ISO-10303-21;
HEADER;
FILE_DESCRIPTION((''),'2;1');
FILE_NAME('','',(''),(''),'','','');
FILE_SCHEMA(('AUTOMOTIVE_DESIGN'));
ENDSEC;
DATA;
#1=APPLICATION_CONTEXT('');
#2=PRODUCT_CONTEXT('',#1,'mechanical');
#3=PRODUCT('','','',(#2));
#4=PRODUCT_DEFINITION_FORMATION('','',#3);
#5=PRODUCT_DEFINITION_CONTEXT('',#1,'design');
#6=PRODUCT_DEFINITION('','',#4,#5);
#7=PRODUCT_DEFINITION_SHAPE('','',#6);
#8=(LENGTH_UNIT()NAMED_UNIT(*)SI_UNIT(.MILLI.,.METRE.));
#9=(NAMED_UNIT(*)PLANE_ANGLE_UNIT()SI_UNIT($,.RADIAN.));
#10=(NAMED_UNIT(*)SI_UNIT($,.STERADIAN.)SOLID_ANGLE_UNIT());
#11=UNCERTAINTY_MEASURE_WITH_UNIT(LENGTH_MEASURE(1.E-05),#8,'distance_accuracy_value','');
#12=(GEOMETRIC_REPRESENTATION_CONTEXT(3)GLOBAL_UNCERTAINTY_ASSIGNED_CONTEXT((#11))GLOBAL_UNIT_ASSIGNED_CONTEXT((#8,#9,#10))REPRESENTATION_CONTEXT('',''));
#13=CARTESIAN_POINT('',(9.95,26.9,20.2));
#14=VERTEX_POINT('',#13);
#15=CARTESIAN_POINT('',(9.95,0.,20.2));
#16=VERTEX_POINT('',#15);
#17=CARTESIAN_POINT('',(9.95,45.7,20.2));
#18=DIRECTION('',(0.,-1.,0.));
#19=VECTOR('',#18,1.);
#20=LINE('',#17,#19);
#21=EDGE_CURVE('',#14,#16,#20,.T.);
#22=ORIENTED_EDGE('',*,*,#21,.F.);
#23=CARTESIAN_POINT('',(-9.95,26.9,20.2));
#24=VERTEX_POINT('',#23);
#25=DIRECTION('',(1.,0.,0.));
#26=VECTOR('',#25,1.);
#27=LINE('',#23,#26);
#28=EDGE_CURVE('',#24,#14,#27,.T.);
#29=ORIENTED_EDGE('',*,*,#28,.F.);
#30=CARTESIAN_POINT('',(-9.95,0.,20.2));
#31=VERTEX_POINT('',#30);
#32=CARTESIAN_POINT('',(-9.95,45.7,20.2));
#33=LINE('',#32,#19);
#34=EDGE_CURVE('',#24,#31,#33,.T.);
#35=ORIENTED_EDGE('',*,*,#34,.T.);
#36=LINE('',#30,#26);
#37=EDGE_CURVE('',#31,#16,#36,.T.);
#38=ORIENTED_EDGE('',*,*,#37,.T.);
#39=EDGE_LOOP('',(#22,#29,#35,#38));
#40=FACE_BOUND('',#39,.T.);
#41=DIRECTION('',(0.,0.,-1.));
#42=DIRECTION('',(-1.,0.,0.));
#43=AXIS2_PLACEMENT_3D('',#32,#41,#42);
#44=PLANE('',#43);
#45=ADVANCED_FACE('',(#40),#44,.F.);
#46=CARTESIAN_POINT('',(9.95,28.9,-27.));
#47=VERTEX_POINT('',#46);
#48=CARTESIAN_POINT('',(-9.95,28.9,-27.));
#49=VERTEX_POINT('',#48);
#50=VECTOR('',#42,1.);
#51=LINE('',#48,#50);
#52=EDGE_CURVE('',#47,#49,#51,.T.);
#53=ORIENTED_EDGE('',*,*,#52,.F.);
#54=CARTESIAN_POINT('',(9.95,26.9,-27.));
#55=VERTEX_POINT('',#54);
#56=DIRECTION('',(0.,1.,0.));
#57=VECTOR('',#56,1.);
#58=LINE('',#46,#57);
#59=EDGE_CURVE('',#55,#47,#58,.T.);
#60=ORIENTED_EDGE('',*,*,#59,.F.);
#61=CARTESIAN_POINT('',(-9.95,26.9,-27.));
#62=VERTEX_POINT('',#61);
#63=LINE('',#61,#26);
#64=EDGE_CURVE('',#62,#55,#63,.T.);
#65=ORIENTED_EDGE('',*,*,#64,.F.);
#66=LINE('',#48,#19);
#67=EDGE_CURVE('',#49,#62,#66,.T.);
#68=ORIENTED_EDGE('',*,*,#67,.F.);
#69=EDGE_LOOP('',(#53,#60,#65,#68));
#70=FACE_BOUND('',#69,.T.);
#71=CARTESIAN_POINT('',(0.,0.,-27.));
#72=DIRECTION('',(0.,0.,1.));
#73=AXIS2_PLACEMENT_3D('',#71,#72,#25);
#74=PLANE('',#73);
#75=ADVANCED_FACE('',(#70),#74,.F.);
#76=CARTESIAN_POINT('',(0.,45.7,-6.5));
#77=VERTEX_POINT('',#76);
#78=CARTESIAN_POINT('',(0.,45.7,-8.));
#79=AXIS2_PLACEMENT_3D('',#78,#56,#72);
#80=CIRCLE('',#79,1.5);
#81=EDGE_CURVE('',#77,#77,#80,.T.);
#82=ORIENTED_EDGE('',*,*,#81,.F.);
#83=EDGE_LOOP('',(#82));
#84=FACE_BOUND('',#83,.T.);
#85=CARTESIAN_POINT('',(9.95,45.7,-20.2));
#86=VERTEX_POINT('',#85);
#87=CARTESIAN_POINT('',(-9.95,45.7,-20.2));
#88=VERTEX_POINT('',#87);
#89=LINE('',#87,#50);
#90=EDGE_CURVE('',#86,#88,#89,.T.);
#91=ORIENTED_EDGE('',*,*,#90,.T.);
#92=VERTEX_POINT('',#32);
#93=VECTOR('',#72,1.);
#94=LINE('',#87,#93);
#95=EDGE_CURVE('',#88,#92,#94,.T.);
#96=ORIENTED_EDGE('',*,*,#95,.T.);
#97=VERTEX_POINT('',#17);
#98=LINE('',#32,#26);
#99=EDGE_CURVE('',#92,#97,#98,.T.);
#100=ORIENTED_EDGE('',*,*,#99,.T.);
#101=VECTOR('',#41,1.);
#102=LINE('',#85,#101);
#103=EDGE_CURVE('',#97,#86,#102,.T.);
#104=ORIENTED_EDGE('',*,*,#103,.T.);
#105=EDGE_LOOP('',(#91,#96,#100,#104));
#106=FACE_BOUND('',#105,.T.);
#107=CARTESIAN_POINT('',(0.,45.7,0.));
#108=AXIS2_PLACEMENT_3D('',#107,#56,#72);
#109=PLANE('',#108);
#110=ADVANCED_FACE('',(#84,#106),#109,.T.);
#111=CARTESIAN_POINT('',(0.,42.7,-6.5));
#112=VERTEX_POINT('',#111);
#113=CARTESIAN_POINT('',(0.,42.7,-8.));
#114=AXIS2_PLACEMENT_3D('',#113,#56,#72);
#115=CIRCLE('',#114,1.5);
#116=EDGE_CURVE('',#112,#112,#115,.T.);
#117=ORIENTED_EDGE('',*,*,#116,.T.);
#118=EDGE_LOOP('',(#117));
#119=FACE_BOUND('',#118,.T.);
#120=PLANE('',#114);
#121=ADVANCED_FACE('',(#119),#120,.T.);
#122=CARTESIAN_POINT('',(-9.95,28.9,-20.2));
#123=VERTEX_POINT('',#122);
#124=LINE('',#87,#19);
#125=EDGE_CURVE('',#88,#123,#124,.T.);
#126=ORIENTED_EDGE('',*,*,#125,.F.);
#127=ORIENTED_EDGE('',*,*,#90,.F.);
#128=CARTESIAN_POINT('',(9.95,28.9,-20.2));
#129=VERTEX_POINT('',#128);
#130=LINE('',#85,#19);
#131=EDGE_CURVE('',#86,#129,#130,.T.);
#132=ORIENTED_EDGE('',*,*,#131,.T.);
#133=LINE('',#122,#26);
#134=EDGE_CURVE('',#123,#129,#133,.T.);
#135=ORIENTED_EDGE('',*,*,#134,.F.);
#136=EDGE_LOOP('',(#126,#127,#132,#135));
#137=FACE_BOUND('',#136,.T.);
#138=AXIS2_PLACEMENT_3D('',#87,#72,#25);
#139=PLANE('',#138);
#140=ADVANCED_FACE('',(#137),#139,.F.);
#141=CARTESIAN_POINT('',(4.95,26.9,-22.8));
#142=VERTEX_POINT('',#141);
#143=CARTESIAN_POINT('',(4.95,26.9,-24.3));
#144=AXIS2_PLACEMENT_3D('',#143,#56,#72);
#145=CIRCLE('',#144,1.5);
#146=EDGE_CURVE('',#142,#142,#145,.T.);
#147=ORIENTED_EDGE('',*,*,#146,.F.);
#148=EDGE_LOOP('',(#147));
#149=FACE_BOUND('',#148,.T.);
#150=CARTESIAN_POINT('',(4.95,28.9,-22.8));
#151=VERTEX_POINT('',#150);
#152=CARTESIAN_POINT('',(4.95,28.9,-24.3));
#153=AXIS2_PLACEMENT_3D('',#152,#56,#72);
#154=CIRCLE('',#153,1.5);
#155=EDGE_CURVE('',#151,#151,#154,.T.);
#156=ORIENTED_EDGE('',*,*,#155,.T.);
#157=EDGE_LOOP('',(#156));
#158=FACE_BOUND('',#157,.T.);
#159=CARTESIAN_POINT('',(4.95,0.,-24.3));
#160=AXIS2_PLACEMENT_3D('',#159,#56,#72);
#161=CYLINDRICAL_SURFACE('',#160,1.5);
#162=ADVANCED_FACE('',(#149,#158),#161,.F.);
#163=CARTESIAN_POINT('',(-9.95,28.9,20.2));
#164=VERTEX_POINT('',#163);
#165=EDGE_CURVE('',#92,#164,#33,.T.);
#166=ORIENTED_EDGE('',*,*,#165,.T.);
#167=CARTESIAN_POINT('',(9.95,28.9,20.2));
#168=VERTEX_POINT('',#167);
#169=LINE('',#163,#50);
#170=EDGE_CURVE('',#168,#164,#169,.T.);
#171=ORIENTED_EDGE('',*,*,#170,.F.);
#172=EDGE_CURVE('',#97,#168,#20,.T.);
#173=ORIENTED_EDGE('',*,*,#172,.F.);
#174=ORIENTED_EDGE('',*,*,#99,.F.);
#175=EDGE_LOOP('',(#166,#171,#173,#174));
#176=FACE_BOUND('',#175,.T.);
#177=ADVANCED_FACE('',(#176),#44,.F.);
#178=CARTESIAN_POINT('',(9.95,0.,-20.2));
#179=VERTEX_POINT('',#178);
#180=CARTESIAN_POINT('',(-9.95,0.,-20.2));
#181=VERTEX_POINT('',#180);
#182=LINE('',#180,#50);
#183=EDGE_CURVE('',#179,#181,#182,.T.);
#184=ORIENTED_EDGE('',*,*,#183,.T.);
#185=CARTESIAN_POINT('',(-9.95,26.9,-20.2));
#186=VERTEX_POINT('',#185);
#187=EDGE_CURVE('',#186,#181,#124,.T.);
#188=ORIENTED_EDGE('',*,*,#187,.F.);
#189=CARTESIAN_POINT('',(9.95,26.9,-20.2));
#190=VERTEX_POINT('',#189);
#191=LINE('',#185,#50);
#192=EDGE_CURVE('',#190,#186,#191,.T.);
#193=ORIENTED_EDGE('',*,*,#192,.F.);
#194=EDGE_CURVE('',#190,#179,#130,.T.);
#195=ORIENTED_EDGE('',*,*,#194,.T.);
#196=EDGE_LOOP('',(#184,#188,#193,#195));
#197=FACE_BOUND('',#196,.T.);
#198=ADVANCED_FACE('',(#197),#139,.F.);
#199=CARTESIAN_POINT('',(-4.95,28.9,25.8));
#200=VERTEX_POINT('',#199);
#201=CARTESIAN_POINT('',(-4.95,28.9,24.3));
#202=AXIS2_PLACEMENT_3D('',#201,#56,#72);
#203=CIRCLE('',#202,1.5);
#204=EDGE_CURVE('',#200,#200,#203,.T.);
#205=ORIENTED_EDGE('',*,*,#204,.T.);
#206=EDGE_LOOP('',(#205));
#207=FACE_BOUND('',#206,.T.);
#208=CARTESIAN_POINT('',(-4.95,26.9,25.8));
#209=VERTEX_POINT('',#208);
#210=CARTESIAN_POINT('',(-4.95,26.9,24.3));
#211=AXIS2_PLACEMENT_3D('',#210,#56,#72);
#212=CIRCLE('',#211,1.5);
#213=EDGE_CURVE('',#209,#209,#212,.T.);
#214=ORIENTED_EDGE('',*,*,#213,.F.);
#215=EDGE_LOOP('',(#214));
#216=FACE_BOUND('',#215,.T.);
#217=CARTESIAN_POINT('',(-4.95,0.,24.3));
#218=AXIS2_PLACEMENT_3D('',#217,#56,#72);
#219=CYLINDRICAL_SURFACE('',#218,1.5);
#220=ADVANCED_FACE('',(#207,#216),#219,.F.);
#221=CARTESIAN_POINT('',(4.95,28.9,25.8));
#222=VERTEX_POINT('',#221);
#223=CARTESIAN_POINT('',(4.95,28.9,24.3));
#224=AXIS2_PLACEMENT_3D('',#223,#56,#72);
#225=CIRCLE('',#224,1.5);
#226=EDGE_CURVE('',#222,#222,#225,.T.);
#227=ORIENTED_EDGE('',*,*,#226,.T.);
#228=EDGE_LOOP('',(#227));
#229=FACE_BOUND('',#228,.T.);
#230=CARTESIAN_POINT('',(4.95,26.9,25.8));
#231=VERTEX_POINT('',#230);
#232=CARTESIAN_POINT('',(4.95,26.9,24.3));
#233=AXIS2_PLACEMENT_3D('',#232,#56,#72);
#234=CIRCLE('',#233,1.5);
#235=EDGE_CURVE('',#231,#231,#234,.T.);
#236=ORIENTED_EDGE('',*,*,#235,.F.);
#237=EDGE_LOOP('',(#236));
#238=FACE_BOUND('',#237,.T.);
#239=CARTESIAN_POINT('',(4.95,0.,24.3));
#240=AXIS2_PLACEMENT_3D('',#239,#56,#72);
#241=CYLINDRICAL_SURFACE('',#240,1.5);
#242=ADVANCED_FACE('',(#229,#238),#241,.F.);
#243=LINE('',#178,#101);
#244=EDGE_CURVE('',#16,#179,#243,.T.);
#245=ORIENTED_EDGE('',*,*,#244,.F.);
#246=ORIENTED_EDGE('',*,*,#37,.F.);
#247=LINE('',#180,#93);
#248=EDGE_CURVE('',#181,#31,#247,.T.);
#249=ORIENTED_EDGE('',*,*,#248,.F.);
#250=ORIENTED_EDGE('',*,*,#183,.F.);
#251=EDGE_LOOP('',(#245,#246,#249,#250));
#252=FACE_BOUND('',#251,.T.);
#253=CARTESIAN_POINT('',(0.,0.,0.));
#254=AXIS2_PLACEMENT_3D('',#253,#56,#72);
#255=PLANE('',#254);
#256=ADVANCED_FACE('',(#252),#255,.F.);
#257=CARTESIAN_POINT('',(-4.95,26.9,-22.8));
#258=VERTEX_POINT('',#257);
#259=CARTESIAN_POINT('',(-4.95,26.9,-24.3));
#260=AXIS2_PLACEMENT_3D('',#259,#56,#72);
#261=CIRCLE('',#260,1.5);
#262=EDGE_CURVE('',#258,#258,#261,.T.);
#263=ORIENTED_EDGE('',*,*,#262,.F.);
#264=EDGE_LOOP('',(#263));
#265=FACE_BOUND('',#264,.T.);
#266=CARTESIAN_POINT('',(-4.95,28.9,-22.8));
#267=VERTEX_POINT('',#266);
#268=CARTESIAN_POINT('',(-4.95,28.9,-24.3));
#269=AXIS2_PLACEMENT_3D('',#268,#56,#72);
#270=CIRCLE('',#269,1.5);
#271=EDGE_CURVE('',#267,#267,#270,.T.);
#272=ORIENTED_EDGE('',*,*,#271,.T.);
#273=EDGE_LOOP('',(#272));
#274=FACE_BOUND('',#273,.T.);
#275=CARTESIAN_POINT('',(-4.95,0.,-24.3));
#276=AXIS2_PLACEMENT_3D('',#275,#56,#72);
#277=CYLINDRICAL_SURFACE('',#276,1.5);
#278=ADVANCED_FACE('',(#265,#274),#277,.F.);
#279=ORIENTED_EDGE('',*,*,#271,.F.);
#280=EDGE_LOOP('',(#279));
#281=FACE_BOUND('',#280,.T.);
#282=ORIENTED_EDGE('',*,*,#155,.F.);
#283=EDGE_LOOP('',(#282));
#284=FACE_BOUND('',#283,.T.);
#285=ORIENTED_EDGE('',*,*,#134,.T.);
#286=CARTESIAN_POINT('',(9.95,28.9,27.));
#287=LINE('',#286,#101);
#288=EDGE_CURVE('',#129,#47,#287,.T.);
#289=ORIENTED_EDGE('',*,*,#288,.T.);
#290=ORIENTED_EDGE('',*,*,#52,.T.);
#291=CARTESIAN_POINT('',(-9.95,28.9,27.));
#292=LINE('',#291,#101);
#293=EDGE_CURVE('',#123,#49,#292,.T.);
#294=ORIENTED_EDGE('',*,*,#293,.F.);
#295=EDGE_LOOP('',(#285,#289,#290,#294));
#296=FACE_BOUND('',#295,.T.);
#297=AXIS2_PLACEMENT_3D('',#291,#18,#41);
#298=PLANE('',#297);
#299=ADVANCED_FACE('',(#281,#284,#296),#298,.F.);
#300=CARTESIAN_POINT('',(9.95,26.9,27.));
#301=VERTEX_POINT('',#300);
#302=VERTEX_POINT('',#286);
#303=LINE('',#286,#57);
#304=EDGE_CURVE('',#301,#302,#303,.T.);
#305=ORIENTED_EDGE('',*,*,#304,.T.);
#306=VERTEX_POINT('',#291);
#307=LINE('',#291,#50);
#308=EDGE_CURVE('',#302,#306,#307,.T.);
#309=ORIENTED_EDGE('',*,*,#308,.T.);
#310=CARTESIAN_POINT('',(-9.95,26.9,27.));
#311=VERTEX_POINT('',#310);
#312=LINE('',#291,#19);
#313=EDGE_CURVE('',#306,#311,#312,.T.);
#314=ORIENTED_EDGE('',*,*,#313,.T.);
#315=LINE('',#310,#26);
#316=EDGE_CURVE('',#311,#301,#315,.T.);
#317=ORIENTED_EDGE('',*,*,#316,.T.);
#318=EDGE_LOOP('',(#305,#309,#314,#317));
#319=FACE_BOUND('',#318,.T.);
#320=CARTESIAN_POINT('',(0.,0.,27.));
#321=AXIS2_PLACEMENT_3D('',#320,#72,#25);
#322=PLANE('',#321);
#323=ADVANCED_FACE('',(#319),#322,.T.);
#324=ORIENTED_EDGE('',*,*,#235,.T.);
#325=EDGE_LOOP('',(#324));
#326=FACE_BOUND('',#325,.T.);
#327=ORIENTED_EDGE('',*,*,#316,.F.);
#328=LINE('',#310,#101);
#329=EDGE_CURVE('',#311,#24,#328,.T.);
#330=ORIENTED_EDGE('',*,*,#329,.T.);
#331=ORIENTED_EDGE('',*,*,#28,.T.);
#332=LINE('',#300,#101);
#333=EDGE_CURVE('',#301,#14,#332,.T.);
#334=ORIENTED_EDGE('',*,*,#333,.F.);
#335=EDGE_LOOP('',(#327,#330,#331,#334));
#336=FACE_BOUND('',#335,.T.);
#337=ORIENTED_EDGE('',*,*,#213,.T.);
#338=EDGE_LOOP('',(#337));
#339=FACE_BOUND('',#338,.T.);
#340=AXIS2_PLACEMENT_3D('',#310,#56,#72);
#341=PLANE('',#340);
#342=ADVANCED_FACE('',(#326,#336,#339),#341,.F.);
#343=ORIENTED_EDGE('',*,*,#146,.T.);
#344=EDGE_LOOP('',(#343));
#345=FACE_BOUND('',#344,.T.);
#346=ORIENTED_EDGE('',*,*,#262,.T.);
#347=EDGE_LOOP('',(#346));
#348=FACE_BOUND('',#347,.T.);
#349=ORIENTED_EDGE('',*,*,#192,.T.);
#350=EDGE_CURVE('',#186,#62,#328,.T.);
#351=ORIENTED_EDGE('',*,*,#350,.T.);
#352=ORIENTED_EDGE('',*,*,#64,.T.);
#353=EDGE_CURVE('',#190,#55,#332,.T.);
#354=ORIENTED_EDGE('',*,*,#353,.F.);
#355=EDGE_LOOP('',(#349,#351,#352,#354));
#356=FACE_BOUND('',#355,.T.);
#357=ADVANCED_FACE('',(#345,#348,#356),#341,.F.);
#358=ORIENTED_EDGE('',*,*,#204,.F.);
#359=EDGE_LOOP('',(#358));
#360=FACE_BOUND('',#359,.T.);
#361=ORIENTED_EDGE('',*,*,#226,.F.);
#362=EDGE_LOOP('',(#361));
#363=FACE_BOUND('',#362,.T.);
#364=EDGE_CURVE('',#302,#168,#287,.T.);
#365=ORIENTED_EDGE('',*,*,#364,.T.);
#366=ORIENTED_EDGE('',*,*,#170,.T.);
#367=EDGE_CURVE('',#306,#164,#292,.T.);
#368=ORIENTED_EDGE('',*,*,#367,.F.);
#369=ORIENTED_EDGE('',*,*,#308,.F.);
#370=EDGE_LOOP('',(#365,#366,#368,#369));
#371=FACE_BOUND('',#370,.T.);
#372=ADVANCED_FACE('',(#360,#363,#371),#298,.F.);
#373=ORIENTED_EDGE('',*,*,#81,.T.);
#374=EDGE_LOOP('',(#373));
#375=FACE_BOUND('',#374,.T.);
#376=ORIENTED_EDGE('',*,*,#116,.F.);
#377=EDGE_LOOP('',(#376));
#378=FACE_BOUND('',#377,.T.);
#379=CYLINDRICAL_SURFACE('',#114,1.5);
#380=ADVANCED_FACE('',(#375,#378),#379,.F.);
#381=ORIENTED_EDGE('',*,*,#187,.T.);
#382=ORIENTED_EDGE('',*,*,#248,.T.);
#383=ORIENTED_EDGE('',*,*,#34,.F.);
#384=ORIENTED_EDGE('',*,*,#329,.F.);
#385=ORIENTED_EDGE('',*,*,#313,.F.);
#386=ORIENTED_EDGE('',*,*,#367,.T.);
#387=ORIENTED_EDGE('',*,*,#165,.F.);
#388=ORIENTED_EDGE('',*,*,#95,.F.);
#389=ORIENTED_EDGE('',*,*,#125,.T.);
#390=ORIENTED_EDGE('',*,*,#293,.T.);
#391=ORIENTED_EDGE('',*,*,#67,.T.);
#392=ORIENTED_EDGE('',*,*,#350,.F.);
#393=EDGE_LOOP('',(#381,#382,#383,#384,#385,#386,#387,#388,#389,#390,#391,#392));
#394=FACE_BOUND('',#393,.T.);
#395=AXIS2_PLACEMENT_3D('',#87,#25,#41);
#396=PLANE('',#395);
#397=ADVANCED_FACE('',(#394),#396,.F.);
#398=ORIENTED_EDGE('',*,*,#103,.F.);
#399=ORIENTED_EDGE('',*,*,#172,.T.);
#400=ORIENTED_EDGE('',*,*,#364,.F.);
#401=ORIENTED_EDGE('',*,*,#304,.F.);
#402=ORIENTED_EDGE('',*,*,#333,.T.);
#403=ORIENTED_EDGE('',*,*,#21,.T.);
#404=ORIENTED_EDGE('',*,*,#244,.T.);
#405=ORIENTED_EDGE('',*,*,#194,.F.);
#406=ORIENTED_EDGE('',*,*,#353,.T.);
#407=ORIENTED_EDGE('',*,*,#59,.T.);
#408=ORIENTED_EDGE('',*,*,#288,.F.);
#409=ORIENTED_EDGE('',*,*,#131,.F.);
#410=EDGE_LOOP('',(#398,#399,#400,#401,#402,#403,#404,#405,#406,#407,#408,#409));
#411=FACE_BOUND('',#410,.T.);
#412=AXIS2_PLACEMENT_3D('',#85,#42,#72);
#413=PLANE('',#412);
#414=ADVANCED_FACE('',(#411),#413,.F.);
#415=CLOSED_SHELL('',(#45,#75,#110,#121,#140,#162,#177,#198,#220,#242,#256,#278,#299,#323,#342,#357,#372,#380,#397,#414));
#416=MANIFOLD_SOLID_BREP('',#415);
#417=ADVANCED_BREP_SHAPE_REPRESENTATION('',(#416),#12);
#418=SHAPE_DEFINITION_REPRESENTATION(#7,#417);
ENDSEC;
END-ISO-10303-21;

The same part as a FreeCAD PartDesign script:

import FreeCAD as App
import Part
import Sketcher

V = App.Vector
Q = App.Units.Quantity

doc = App.newDocument("Part")
body = doc.addObject("PartDesign::Body", "Body")

# Sketch on XZ plane
sketch1 = body.newObject("Sketcher::SketchObject", "Sketch")
sketch1.AttachmentSupport = (doc.getObject("XZ_Plane"), [""])
sketch1.MapMode = "FlatFace"
sketch1.addGeometry(Part.LineSegment(V(-10, -20, 0), V(-10, 20, 0)), False)
sketch1.addGeometry(Part.LineSegment(V(-10, 20, 0), V(10, 20, 0)), False)
sketch1.addGeometry(Part.LineSegment(V(10, 20, 0), V(10, -20, 0)), False)
sketch1.addGeometry(Part.LineSegment(V(10, -20, 0), V(-10, -20, 0)), False)
sketch1.addConstraint(Sketcher.Constraint("Coincident", 0, 2, 1, 1))
sketch1.addConstraint(Sketcher.Constraint("Coincident", 1, 2, 2, 1))
sketch1.addConstraint(Sketcher.Constraint("Coincident", 2, 2, 3, 1))
sketch1.addConstraint(Sketcher.Constraint("Coincident", 3, 2, 0, 1))
sketch1.addConstraint(Sketcher.Constraint("Vertical", 0))
sketch1.addConstraint(Sketcher.Constraint("Horizontal", 1))
sketch1.addConstraint(Sketcher.Constraint("Vertical", 2))
sketch1.addConstraint(Sketcher.Constraint("Horizontal", 3))
sketch1.addConstraint(Sketcher.Constraint("Symmetric", 0, 2, 2, 2, -1, 1))
sketch1.addConstraint(Sketcher.Constraint("DistanceX", 1, 1, 1, 2, Q("19.9 mm")))
sketch1.addConstraint(Sketcher.Constraint("DistanceY", 0, 1, 0, 2, Q("40.4 mm")))
pad1 = body.newObject("PartDesign::Pad", "Pad")
pad1.Profile = sketch1
pad1.Length = 45.7
pad1.Reversed = True

# Sketch on XY plane
sketch2 = body.newObject("Sketcher::SketchObject", "Sketch001")
sketch2.AttachmentSupport = (doc.getObject("XY_Plane"), [""])
sketch2.MapMode = "FlatFace"
sketch2.addGeometry(Part.LineSegment(V(-9.9, 28.9, 0), V(-9.9, 26.9, 0)), False)
sketch2.addGeometry(Part.LineSegment(V(-9.9, 26.9, 0), V(9.9, 26.9, 0)), False)
sketch2.addGeometry(Part.LineSegment(V(9.9, 26.9, 0), V(9.9, 28.9, 0)), False)
sketch2.addGeometry(Part.LineSegment(V(9.9, 28.9, 0), V(-9.9, 28.9, 0)), False)
sketch2.addConstraint(Sketcher.Constraint("Coincident", 0, 2, 1, 1))
sketch2.addConstraint(Sketcher.Constraint("Coincident", 1, 2, 2, 1))
sketch2.addConstraint(Sketcher.Constraint("Coincident", 2, 2, 3, 1))
sketch2.addConstraint(Sketcher.Constraint("Coincident", 3, 2, 0, 1))
sketch2.addConstraint(Sketcher.Constraint("Vertical", 0))
sketch2.addConstraint(Sketcher.Constraint("Horizontal", 1))
sketch2.addConstraint(Sketcher.Constraint("Vertical", 2))
sketch2.addConstraint(Sketcher.Constraint("Horizontal", 3))
sketch2.addConstraint(Sketcher.Constraint("DistanceY", 0, 2, 0, 1, Q("2 mm")))
sketch2.addConstraint(Sketcher.Constraint("DistanceX", 1, 1, 1, 2, Q("19.9 mm")))
sketch2.addConstraint(Sketcher.Constraint("DistanceY", -1, 1, 0, 2, Q("26.9 mm")))
sketch2.addConstraint(Sketcher.Constraint("DistanceX", 0, 2, -1, 1, Q("9.95 mm")))
pad2 = body.newObject("PartDesign::Pad", "Pad001")
pad2.Profile = sketch2
pad2.Length = 54
pad2.Midplane = True

# Sketch on XZ plane
sketch3 = body.newObject("Sketcher::SketchObject", "Sketch002")
sketch3.AttachmentSupport = (doc.getObject("XZ_Plane"), [""])
sketch3.MapMode = "FlatFace"
sketch3.AttachmentOffset = App.Placement(V(0, 0, -45.7), App.Rotation())
sketch3.addGeometry(Part.Circle(V(0, -8, 0), V(0, 0, 1), 1.5), False)
sketch3.addConstraint(Sketcher.Constraint("PointOnObject", 0, 3, -2))
sketch3.addConstraint(Sketcher.Constraint("Diameter", 0, Q("3 mm")))
sketch3.addConstraint(Sketcher.Constraint("DistanceY", 0, 3, -1, 1, Q("8 mm")))
pocket1 = body.newObject("PartDesign::Pocket", "Pocket")
pocket1.Profile = sketch3
pocket1.Length = 3
pocket1.Reversed = True

# Sketch on XZ plane
sketch4 = body.newObject("Sketcher::SketchObject", "Sketch003")
sketch4.AttachmentSupport = (doc.getObject("XZ_Plane"), [""])
sketch4.MapMode = "FlatFace"
sketch4.AttachmentOffset = App.Placement(V(0, 0, -28.9), App.Rotation())
sketch4.addGeometry(Part.Circle(V(-5, -24.3, 0), V(0, 0, 1), 1.5), False)
sketch4.addGeometry(Part.Circle(V(5, -24.3, 0), V(0, 0, 1), 1.5), False)
sketch4.addGeometry(Part.Circle(V(-5, 24.3, 0), V(0, 0, 1), 1.5), False)
sketch4.addGeometry(Part.Circle(V(5, 24.3, 0), V(0, 0, 1), 1.5), False)
sketch4.addConstraint(Sketcher.Constraint("Equal", 0, 1))
sketch4.addConstraint(Sketcher.Constraint("Equal", 1, 2))
sketch4.addConstraint(Sketcher.Constraint("Equal", 2, 3))
sketch4.addConstraint(Sketcher.Constraint("Symmetric", 1, 3, 2, 3, -1, 1))
sketch4.addConstraint(Sketcher.Constraint("Symmetric", 0, 3, 3, 3, -1, 1))
sketch4.addConstraint(Sketcher.Constraint("Symmetric", 0, 3, 1, 3, -2))
sketch4.addConstraint(Sketcher.Constraint("Diameter", 0, Q("3 mm")))
sketch4.addConstraint(Sketcher.Constraint("DistanceY", 0, 3, -1, 1, Q("24.3 mm")))
sketch4.addConstraint(Sketcher.Constraint("DistanceX", 0, 3, 1, 3, Q("9.9 mm")))
pocket2 = body.newObject("PartDesign::Pocket", "Pocket001")
pocket2.Profile = sketch4
pocket2.Type = "ThroughAll"
pocket2.Reversed = True

doc.recompute()
